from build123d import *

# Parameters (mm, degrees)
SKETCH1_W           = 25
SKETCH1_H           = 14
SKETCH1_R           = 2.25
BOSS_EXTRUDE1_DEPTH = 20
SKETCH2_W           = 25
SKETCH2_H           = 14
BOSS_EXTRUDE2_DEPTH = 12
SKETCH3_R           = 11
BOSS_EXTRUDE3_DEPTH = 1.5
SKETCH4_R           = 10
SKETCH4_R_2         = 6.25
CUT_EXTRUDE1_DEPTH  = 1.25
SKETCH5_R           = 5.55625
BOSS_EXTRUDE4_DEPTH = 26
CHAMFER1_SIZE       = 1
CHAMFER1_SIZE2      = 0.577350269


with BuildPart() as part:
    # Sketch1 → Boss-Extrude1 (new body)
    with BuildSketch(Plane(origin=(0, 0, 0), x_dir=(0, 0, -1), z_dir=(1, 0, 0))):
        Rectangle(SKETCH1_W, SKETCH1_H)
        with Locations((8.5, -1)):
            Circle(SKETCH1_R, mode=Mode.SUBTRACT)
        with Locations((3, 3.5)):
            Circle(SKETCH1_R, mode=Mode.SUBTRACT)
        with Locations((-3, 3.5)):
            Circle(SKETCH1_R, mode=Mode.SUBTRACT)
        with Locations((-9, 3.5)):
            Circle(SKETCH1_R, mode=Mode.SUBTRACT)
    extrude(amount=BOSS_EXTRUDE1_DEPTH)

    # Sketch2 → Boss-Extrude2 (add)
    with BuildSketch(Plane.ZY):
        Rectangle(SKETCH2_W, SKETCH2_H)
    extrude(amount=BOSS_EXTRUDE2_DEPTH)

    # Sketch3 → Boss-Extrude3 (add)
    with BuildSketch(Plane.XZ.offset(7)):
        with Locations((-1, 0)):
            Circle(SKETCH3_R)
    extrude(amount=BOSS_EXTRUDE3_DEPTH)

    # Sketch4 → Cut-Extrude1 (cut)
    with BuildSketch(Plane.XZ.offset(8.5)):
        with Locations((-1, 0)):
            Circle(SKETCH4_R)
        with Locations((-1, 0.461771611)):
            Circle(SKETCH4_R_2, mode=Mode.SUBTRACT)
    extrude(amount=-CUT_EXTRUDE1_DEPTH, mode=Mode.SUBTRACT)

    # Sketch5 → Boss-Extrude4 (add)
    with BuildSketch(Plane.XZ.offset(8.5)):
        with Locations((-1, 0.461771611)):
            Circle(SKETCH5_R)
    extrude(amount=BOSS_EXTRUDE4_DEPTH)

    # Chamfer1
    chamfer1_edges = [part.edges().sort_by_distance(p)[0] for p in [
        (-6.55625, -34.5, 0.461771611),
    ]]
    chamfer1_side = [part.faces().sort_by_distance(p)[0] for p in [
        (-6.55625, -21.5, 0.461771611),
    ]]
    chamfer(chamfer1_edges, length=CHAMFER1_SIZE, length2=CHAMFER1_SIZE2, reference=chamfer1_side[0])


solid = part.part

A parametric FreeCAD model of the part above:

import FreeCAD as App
import Part
import Sketcher


def edges_at(feature, points):
    """Names of the edges that pass closest to the given points."""
    edges = feature.Shape.Edges
    near = lambda p: min(range(len(edges)), key=lambda i: edges[i].distToShape(Part.Vertex(*p))[0])
    return sorted({f"Edge{near(p) + 1}" for p in points})

doc = App.newDocument("Part")
params = doc.addObject("Spreadsheet::Sheet", "Params")
for row, (alias, value) in enumerate([
    ("sketch1_diameter", "4.5 mm"),
    ("sketch1_width", "14 mm"),
    ("sketch1_height", "25 mm"),
    ("pad1_length", "20 mm"),
    ("sketch2_width", "14 mm"),
    ("sketch2_height", "25 mm"),
    ("pad2_length", "12 mm"),
    ("sketch3_diameter", "22 mm"),
    ("pad3_length", "1.5 mm"),
    ("sketch4_diameter", "20 mm"),
    ("sketch4_diameter2", "12.5 mm"),
    ("pocket1_length", "1.25 mm"),
    ("pad4_length", "26 mm"),
    ("chamfer_size", "1 mm"),
    ("chamfer_size2", "0.57735 mm"),
], start=1):
    params.set(f"A{row}", alias)
    params.set(f"B{row}", "=" + value)
    params.setAlias(f"B{row}", alias)

body = doc.addObject("PartDesign::Body", "Body")

sketch1 = body.newObject("Sketcher::SketchObject", "Sketch")
sketch1.AttachmentSupport = (doc.getObject("YZ_Plane"), [""])
sketch1.MapMode = "FlatFace"
sketch1.addGeometry([
    Part.LineSegment(App.Vector(7, 12.5, 0), App.Vector(-7, 12.5, 0)),
    Part.LineSegment(App.Vector(-7, 12.5, 0), App.Vector(-7, -12.5, 0)),
    Part.LineSegment(App.Vector(-7, -12.5, 0), App.Vector(7, -12.5, 0)),
    Part.LineSegment(App.Vector(7, -12.5, 0), App.Vector(7, 12.5, 0)),
    Part.Circle(App.Vector(-1, -8.5, 0), App.Vector(0, 0, 1), 2.2),
    Part.Circle(App.Vector(3.5, 9, 0), App.Vector(0, 0, 1), 2.2),
    Part.Circle(App.Vector(3.5, 3, 0), App.Vector(0, 0, 1), 2.2),
    Part.Circle(App.Vector(3.5, -3, 0), App.Vector(0, 0, 1), 2.2),
], False)
sketch1.addConstraint([
    Sketcher.Constraint("Coincident", 0, 2, 1, 1),
    Sketcher.Constraint("Coincident", 1, 2, 2, 1),
    Sketcher.Constraint("Coincident", 2, 2, 3, 1),
    Sketcher.Constraint("Coincident", 3, 2, 0, 1),
    Sketcher.Constraint("Horizontal", 0),
    Sketcher.Constraint("Vertical", 1),
    Sketcher.Constraint("Horizontal", 2),
    Sketcher.Constraint("Vertical", 3),
    Sketcher.Constraint("Equal", 4, 5),
    Sketcher.Constraint("Equal", 5, 6),
    Sketcher.Constraint("Equal", 6, 7),
    Sketcher.Constraint("Symmetric", 0, 2, 2, 2, -1, 1),
    Sketcher.Constraint("Symmetric", 6, 3, 7, 3, -1),
    Sketcher.Constraint("Vertical", 5, 3, 6, 3),
    Sketcher.Constraint("Diameter", 4, 4.5),
    Sketcher.Constraint("DistanceX", 0, 2, 0, 1, 14.0),
    Sketcher.Constraint("DistanceY", 1, 2, 1, 1, 25.0),
    Sketcher.Constraint("DistanceX", 4, 3, -1, 1, 1.0),
    Sketcher.Constraint("DistanceY", -1, 1, 5, 3, 9.0),
    Sketcher.Constraint("DistanceY", -1, 1, 6, 3, 3.0),
    Sketcher.Constraint("DistanceY", 4, 3, 0, 2, 21.0),
    Sketcher.Constraint("DistanceX", -1, 1, 5, 3, 3.5),
])
sketch1.setExpression("Constraints[14]", "Params.sketch1_diameter")
sketch1.setExpression("Constraints[15]", "Params.sketch1_width")
sketch1.setExpression("Constraints[16]", "Params.sketch1_height")
pad1 = body.newObject("PartDesign::Pad", "Pad")
pad1.Profile = sketch1
pad1.setExpression("Length", "Params.pad1_length")

sketch2 = body.newObject("Sketcher::SketchObject", "Sketch001")
sketch2.AttachmentSupport = (doc.getObject("YZ_Plane"), [""])
sketch2.MapMode = "FlatFace"
sketch2.addGeometry([
    Part.LineSegment(App.Vector(7, -12, 0), App.Vector(-7, -12, 0)),
    Part.LineSegment(App.Vector(-7, -12, 0), App.Vector(-7, 12, 0)),
    Part.LineSegment(App.Vector(-7, 12, 0), App.Vector(7, 12, 0)),
    Part.LineSegment(App.Vector(7, 12, 0), App.Vector(7, -12, 0)),
], False)
sketch2.addConstraint([
    Sketcher.Constraint("Coincident", 0, 2, 1, 1),
    Sketcher.Constraint("Coincident", 1, 2, 2, 1),
    Sketcher.Constraint("Coincident", 2, 2, 3, 1),
    Sketcher.Constraint("Coincident", 3, 2, 0, 1),
    Sketcher.Constraint("Horizontal", 0),
    Sketcher.Constraint("Vertical", 1),
    Sketcher.Constraint("Horizontal", 2),
    Sketcher.Constraint("Vertical", 3),
    Sketcher.Constraint("Symmetric", 0, 2, 2, 2, -1, 1),
    Sketcher.Constraint("DistanceX", 0, 2, 0, 1, 14.0),
    Sketcher.Constraint("DistanceY", 1, 1, 1, 2, 25.0),
])
sketch2.setExpression("Constraints[9]", "Params.sketch2_width")
sketch2.setExpression("Constraints[10]", "Params.sketch2_height")
pad2 = body.newObject("PartDesign::Pad", "Pad001")
pad2.Profile = sketch2
pad2.setExpression("Length", "Params.pad2_length")
pad2.Reversed = True

sketch3 = body.newObject("Sketcher::SketchObject", "Sketch002")
sketch3.AttachmentSupport = (doc.getObject("XZ_Plane"), [""])
sketch3.MapMode = "FlatFace"
sketch3.AttachmentOffset = App.Placement(App.Vector(0, 0, 7), App.Rotation())
sketch3.addGeometry(Part.Circle(App.Vector(-1, 0, 0), App.Vector(0, 0, 1), 11), False)
sketch3.addConstraint([
    Sketcher.Constraint("PointOnObject", 0, 3, -1),
    Sketcher.Constraint("Diameter", 0, 22.0),
    Sketcher.Constraint("DistanceX", 0, 3, -1, 1, 1.0),
])
sketch3.setExpression("Constraints[1]", "Params.sketch3_diameter")
pad3 = body.newObject("PartDesign::Pad", "Pad002")
pad3.Profile = sketch3
pad3.setExpression("Length", "Params.pad3_length")

sketch4 = body.newObject("Sketcher::SketchObject", "Sketch003")
sketch4.AttachmentSupport = (doc.getObject("XZ_Plane"), [""])
sketch4.MapMode = "FlatFace"
sketch4.AttachmentOffset = App.Placement(App.Vector(0, 0, 8.5), App.Rotation())
sketch4.addGeometry([
    Part.Circle(App.Vector(-1, 0, 0), App.Vector(0, 0, 1), 10),
    Part.Circle(App.Vector(-1, 0, 0), App.Vector(0, 0, 1), 6),
], False)
sketch4.addConstraint([
    Sketcher.Constraint("PointOnObject", 0, 3, -1),
    Sketcher.Constraint("Vertical", 0, 3, 1, 3),
    Sketcher.Constraint("Diameter", 0, 20.0),
    Sketcher.Constraint("Diameter", 1, 12.5),
    Sketcher.Constraint("DistanceX", 0, 3, -1, 1, 1.0),
    Sketcher.Constraint("DistanceY", -1, 1, 1, 3, 0.461772),
])
sketch4.setExpression("Constraints[2]", "Params.sketch4_diameter")
sketch4.setExpression("Constraints[3]", "Params.sketch4_diameter2")
pocket1 = body.newObject("PartDesign::Pocket", "Pocket")
pocket1.Profile = sketch4
pocket1.setExpression("Length", "Params.pocket1_length")

sketch5 = body.newObject("Sketcher::SketchObject", "Sketch004")
sketch5.AttachmentSupport = (doc.getObject("XZ_Plane"), [""])
sketch5.MapMode = "FlatFace"
sketch5.AttachmentOffset = App.Placement(App.Vector(0, 0, 8.5), App.Rotation())
sketch5.addGeometry(Part.Circle(App.Vector(-1, 0, 0), App.Vector(0, 0, 1), 6), False)
sketch5.addConstraint([
    Sketcher.Constraint("DistanceX", 0, 3, -1, 1, 1.0),
    Sketcher.Constraint("Diameter", 0, 11.1125),
    Sketcher.Constraint("DistanceY", -1, 1, 0, 3, 0.461772),
])
pad4 = body.newObject("PartDesign::Pad", "Pad003")
pad4.Profile = sketch5
pad4.setExpression("Length", "Params.pad4_length")
doc.recompute()

chamfer = body.newObject("PartDesign::Chamfer", "Chamfer")
chamfer.Base = (pad4, edges_at(pad4, [(-6.556, -34.5, 0.462)]))
chamfer.ChamferType = "Two distances"
chamfer.setExpression("Size", "Params.chamfer_size")
chamfer.setExpression("Size2", "Params.chamfer_size2")

doc.recompute()
